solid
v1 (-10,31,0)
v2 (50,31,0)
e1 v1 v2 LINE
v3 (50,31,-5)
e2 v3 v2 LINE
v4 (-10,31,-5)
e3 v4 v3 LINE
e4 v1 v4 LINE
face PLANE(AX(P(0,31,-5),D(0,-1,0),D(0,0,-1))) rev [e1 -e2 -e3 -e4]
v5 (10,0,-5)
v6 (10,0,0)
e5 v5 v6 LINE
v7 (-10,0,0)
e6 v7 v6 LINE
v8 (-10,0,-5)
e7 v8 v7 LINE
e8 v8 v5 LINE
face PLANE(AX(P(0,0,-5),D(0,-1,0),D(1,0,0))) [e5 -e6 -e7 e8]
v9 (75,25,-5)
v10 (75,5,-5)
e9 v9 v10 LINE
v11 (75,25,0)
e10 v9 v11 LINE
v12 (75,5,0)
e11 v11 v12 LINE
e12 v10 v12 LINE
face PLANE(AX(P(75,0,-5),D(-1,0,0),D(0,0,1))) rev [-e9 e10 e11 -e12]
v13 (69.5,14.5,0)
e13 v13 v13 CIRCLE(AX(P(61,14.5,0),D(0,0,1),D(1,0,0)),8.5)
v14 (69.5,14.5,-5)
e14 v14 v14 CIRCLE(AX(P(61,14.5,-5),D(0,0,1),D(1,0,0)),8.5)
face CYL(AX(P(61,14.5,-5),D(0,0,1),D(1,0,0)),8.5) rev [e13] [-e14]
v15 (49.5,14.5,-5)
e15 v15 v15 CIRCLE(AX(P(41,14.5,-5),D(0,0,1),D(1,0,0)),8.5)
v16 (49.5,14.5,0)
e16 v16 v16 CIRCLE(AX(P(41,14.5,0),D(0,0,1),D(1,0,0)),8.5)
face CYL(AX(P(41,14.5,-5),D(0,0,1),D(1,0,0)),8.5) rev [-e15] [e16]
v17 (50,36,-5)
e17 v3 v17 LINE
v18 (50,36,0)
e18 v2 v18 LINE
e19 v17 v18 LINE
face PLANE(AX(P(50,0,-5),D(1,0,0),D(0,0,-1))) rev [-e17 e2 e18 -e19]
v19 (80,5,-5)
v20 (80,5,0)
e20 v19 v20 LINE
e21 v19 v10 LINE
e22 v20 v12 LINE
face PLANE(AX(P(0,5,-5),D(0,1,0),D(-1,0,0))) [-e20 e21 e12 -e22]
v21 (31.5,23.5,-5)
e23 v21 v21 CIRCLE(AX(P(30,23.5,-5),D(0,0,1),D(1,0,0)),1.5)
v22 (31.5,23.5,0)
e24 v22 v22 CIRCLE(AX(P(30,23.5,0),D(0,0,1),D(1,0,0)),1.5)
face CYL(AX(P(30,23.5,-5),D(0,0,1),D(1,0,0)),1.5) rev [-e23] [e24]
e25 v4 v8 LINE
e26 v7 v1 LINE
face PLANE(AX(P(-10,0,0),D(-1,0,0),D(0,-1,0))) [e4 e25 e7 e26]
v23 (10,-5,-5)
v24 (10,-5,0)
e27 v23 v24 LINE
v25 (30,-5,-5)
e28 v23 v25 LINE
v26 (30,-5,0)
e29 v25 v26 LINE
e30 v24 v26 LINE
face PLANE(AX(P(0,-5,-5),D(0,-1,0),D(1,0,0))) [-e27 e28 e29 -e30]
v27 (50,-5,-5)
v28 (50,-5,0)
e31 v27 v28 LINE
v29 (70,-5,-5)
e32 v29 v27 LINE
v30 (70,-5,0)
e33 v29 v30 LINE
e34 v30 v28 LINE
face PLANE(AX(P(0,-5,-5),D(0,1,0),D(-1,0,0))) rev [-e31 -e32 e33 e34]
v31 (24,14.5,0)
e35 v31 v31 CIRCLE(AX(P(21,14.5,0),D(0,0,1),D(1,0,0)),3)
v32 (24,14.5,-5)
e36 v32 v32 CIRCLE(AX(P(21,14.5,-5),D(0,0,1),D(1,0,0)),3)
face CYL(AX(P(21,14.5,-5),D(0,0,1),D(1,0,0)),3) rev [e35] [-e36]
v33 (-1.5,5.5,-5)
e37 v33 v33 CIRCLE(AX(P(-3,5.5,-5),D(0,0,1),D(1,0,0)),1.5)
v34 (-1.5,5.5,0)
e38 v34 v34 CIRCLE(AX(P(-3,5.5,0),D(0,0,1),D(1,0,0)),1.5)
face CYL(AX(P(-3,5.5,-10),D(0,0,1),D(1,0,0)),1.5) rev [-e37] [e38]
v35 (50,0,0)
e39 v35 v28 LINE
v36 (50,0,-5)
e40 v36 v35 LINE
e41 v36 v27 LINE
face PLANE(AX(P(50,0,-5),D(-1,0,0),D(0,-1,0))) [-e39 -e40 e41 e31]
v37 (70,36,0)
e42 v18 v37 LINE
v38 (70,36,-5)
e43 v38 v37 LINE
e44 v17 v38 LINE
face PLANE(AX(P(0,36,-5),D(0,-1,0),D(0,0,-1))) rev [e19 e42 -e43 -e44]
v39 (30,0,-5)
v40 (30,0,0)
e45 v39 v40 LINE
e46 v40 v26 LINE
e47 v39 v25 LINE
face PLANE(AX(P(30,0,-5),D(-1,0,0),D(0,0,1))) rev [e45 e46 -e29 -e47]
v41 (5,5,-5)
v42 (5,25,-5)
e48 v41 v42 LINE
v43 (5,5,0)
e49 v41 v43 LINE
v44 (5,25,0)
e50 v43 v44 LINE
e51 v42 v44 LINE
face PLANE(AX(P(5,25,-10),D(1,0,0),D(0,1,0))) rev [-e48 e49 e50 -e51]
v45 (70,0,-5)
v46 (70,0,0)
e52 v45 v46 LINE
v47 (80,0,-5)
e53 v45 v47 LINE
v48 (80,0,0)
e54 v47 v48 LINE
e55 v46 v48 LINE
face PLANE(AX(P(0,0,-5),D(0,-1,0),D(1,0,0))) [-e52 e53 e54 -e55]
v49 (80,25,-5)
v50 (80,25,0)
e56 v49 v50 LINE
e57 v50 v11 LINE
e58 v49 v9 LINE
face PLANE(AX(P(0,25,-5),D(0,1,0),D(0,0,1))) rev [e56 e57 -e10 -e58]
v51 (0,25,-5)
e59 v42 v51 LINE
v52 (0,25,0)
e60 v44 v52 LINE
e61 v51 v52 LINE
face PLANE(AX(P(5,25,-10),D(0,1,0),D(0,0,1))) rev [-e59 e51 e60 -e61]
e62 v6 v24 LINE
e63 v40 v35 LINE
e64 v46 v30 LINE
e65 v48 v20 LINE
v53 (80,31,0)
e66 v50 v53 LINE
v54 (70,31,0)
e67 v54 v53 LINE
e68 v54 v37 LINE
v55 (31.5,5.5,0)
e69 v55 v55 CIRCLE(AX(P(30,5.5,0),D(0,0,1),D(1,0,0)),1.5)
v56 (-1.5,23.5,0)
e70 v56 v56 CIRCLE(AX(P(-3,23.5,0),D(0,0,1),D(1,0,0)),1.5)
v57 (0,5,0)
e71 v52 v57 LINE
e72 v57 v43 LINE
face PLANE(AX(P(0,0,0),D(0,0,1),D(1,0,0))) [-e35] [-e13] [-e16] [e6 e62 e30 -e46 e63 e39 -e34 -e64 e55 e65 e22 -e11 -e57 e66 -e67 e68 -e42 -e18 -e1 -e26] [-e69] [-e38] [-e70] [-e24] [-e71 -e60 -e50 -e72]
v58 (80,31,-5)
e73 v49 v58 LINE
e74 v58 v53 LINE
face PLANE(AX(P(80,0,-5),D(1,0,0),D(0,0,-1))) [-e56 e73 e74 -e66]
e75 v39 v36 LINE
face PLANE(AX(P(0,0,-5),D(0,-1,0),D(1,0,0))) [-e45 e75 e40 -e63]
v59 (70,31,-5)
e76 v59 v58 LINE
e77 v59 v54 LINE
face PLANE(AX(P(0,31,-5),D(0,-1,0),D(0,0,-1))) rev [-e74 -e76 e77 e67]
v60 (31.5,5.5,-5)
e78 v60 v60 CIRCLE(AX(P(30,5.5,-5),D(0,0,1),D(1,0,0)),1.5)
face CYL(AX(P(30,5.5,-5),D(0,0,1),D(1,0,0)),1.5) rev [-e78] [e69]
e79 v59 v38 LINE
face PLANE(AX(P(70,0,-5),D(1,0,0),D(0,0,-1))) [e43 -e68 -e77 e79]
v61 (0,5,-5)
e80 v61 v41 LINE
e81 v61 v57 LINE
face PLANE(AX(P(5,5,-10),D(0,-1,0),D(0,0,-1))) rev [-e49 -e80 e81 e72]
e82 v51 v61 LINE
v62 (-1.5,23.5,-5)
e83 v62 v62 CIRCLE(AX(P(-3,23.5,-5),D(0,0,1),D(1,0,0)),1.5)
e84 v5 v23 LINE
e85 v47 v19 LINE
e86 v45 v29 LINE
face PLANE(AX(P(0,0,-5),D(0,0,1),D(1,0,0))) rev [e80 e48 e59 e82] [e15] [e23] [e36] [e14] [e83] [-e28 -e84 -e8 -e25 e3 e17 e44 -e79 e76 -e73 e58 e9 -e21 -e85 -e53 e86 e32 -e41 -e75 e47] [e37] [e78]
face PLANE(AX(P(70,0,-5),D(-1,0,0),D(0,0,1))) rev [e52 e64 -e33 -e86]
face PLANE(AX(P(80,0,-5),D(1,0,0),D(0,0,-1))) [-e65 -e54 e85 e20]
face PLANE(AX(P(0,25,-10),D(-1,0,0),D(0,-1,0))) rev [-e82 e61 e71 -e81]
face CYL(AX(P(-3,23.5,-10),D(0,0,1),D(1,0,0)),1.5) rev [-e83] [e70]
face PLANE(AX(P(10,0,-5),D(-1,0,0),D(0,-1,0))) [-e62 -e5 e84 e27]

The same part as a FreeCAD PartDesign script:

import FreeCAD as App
import Part
import Sketcher
from FreeCAD import Vector

doc = App.newDocument("Part")
body = doc.addObject("PartDesign::Body", "Body")

# Sketch on XY plane
sketch1 = doc.addObject("Sketcher::SketchObject", "Sketch")
body.addObject(sketch1)
sketch1.AttachmentSupport = (doc.XY_Plane, [""])
sketch1.MapMode = "FlatFace"
sketch1.addGeometry([
    Part.LineSegment(Vector(0, 0, 0), Vector(10, 0, 0)),  # 0
    Part.LineSegment(Vector(10, 0, 0), Vector(10, -5, 0)),  # 1
    Part.LineSegment(Vector(10, -5, 0), Vector(30, -5, 0)),  # 2
    Part.LineSegment(Vector(30, -5, 0), Vector(30, 0, 0)),  # 3
    Part.LineSegment(Vector(30, 0, 0), Vector(50, 0, 0)),  # 4
    Part.LineSegment(Vector(50, 0, 0), Vector(50, -5, 0)),  # 5
    Part.LineSegment(Vector(50, -5, 0), Vector(70, -5, 0)),  # 6
    Part.LineSegment(Vector(70, -5, 0), Vector(70, 0, 0)),  # 7
    Part.LineSegment(Vector(70, 0, 0), Vector(80, 0, 0)),  # 8
    Part.LineSegment(Vector(80, 0, 0), Vector(80, 5, 0)),  # 9
    Part.LineSegment(Vector(80, 5, 0), Vector(75, 5, 0)),  # 10
    Part.LineSegment(Vector(75, 5, 0), Vector(75, 25, 0)),  # 11
    Part.LineSegment(Vector(75, 25, 0), Vector(80, 25, 0)),  # 12
    Part.LineSegment(Vector(80, 25, 0), Vector(80, 31, 0)),  # 13
    Part.LineSegment(Vector(80, 31, 0), Vector(70, 31, 0)),  # 14
    Part.LineSegment(Vector(70, 31, 0), Vector(70, 36, 0)),  # 15
    Part.LineSegment(Vector(70, 36, 0), Vector(50, 36, 0)),  # 16
    Part.LineSegment(Vector(50, 36, 0), Vector(50, 31, 0)),  # 17
    Part.LineSegment(Vector(50, 31, 0), Vector(0, 31, 0)),  # 18
    Part.LineSegment(Vector(0, 31, 0), Vector(0, 0, 0)),  # 19
    Part.Circle(Vector(30, 5.5, 0), Vector(0, 0, 1), 1.5),  # 20
    Part.Circle(Vector(21, 14.5, 0), Vector(0, 0, 1), 3),  # 21
    Part.Circle(Vector(41, 14.5, 0), Vector(0, 0, 1), 8.5),  # 22
    Part.Circle(Vector(30, 23.5, 0), Vector(0, 0, 1), 1.5),  # 23
    Part.Circle(Vector(61, 14.5, 0), Vector(0, 0, 1), 8.5),  # 24
], False)
sketch1.addConstraint([
    Sketcher.Constraint("Coincident", 0, 2, 1, 1),
    Sketcher.Constraint("Coincident", 1, 2, 2, 1),
    Sketcher.Constraint("Coincident", 2, 2, 3, 1),
    Sketcher.Constraint("Coincident", 3, 2, 4, 1),
    Sketcher.Constraint("Coincident", 4, 2, 5, 1),
    Sketcher.Constraint("Coincident", 5, 2, 6, 1),
    Sketcher.Constraint("Coincident", 6, 2, 7, 1),
    Sketcher.Constraint("Coincident", 7, 2, 8, 1),
    Sketcher.Constraint("Coincident", 8, 2, 9, 1),
    Sketcher.Constraint("Coincident", 9, 2, 10, 1),
    Sketcher.Constraint("Coincident", 10, 2, 11, 1),
    Sketcher.Constraint("Coincident", 11, 2, 12, 1),
    Sketcher.Constraint("Coincident", 12, 2, 13, 1),
    Sketcher.Constraint("Coincident", 13, 2, 14, 1),
    Sketcher.Constraint("Coincident", 14, 2, 15, 1),
    Sketcher.Constraint("Coincident", 15, 2, 16, 1),
    Sketcher.Constraint("Coincident", 16, 2, 17, 1),
    Sketcher.Constraint("Coincident", 17, 2, 18, 1),
    Sketcher.Constraint("Coincident", 18, 2, 19, 1),
    Sketcher.Constraint("Coincident", 19, 2, 0, 1),
    Sketcher.Constraint("Horizontal", 0),
    Sketcher.Constraint("Vertical", 1),
    Sketcher.Constraint("Horizontal", 2),
    Sketcher.Constraint("Vertical", 3),
    Sketcher.Constraint("Horizontal", 4),
    Sketcher.Constraint("Vertical", 5),
    Sketcher.Constraint("Horizontal", 6),
    Sketcher.Constraint("Vertical", 7),
    Sketcher.Constraint("Horizontal", 8),
    Sketcher.Constraint("Vertical", 9),
    Sketcher.Constraint("Horizontal", 10),
    Sketcher.Constraint("Vertical", 11),
    Sketcher.Constraint("Horizontal", 12),
    Sketcher.Constraint("Vertical", 13),
    Sketcher.Constraint("Horizontal", 14),
    Sketcher.Constraint("Vertical", 15),
    Sketcher.Constraint("Horizontal", 16),
    Sketcher.Constraint("Vertical", 17),
    Sketcher.Constraint("Horizontal", 18),
    Sketcher.Constraint("Vertical", 19),
    Sketcher.Constraint("Coincident", 19, 2, -1, 1),
    Sketcher.Constraint("Equal", 20, 23),
    Sketcher.Constraint("Equal", 22, 24),
    Sketcher.Constraint("PointOnObject", 3, 2, -1),
    Sketcher.Constraint("PointOnObject", 7, 2, -1),
    Sketcher.Constraint("Horizontal", 21, 3, 22, 3),
    Sketcher.Constraint("Horizontal", 22, 3, 24, 3),
    Sketcher.Constraint("Horizontal", 2, 2, 5, 2),
    Sketcher.Constraint("Horizontal", 14, 2, 17, 2),
    Sketcher.Constraint("Vertical", 20, 3, 23, 3),
    Sketcher.Constraint("Vertical", 23, 3, 2, 2),
    Sketcher.Constraint("Vertical", 9, 2, 12, 2),
    Sketcher.Constraint("Vertical", 7, 2, 14, 2),
    Sketcher.Constraint("Vertical", 5, 2, 16, 2),
    Sketcher.Constraint("Equal", 2, 4),
    Sketcher.Constraint("Equal", 4, 6),
    Sketcher.Constraint("Equal", 0, 8),
    Sketcher.Constraint("Equal", 12, 1),
    Sketcher.Constraint("Equal", 7, 9),
    Sketcher.Constraint("Equal", 16, 11),
    Sketcher.Constraint("Equal", 9, 15),
    Sketcher.Constraint("Diameter", 20, 3.0),
    Sketcher.Constraint("Diameter", 21, 6.0),
    Sketcher.Constraint("Diameter", 22, 17.0),
    Sketcher.Constraint("DistanceX", 0, 1, 0, 2, 10.0),
    Sketcher.Constraint("DistanceX", 2, 1, 2, 2, 20.0),
    Sketcher.Constraint("DistanceX", 10, 2, 10, 1, 5.0),
    Sketcher.Constraint("DistanceY", 13, 1, 13, 2, 6.0),
    Sketcher.Constraint("DistanceX", -1, 1, 21, 3, 21.0),
    Sketcher.Constraint("DistanceX", -1, 1, 22, 3, 41.0),
    Sketcher.Constraint("DistanceX", -1, 1, 24, 3, 61.0),
    Sketcher.Constraint("DistanceY", 20, 3, 21, 3, 9.0),
    Sketcher.Constraint("DistanceY", 21, 3, 23, 3, 9.0),
    Sketcher.Constraint("DistanceY", -1, 1, 20, 3, 5.5),
])
pad1 = doc.addObject("PartDesign::Pad", "Pad")
body.addObject(pad1)
pad1.Profile = sketch1
pad1.Length = 5
pad1.Reversed = True

# Sketch on YZ plane
sketch2 = doc.addObject("Sketcher::SketchObject", "Sketch001")
body.addObject(sketch2)
sketch2.AttachmentSupport = (doc.YZ_Plane, [""])
sketch2.MapMode = "FlatFace"
sketch2.addGeometry([
    Part.LineSegment(Vector(31, -5, 0), Vector(0, -5, 0)),
    Part.LineSegment(Vector(0, -5, 0), Vector(0, 0, 0)),
    Part.LineSegment(Vector(0, 0, 0), Vector(31, 0, 0)),
    Part.LineSegment(Vector(31, 0, 0), Vector(31, -5, 0)),
], False)
sketch2.addConstraint([
    Sketcher.Constraint("Coincident", 0, 2, 1, 1),
    Sketcher.Constraint("Coincident", 1, 2, 2, 1),
    Sketcher.Constraint("Coincident", 2, 2, 3, 1),
    Sketcher.Constraint("Coincident", 3, 2, 0, 1),
    Sketcher.Constraint("Horizontal", 0),
    Sketcher.Constraint("Vertical", 1),
    Sketcher.Constraint("Horizontal", 2),
    Sketcher.Constraint("Vertical", 3),
    Sketcher.Constraint("Coincident", 1, 2, -1, 1),
    Sketcher.Constraint("DistanceX", 0, 2, 0, 1, 31.0),
    Sketcher.Constraint("DistanceY", 1, 1, 1, 2, 5.0),
])
pad2 = doc.addObject("PartDesign::Pad", "Pad001")
body.addObject(pad2)
pad2.Profile = sketch2
pad2.Length = 10
pad2.Reversed = True

# Sketch on XY plane
sketch3 = doc.addObject("Sketcher::SketchObject", "Sketch002")
body.addObject(sketch3)
sketch3.AttachmentSupport = (doc.XY_Plane, [""])
sketch3.MapMode = "FlatFace"
sketch3.addGeometry([
    Part.Circle(Vector(-3, 23.5, 0), Vector(0, 0, 1), 1.5),  # 0
    Part.Circle(Vector(-3, 5.5, 0), Vector(0, 0, 1), 1.5),  # 1
    Part.LineSegment(Vector(0, 25, 0), Vector(0, 5, 0)),  # 2
    Part.LineSegment(Vector(0, 5, 0), Vector(5, 5, 0)),  # 3
    Part.LineSegment(Vector(5, 5, 0), Vector(5, 25, 0)),  # 4
    Part.LineSegment(Vector(5, 25, 0), Vector(0, 25, 0)),  # 5
], False)
sketch3.addConstraint([
    Sketcher.Constraint("Coincident", 2, 2, 3, 1),
    Sketcher.Constraint("Coincident", 3, 2, 4, 1),
    Sketcher.Constraint("Coincident", 4, 2, 5, 1),
    Sketcher.Constraint("Coincident", 5, 2, 2, 1),
    Sketcher.Constraint("Vertical", 2),
    Sketcher.Constraint("Horizontal", 3),
    Sketcher.Constraint("Vertical", 4),
    Sketcher.Constraint("Horizontal", 5),
    Sketcher.Constraint("Equal", 0, 1),
    Sketcher.Constraint("PointOnObject", 2, 2, -2),
    Sketcher.Constraint("Vertical", 0, 3, 1, 3),
    Sketcher.Constraint("Diameter", 0, 3.0),
    Sketcher.Constraint("DistanceX", 3, 1, 3, 2, 5.0),
    Sketcher.Constraint("DistanceY", 2, 2, 2, 1, 20.0),
    Sketcher.Constraint("DistanceX", 0, 3, -1, 1, 3.0),
    Sketcher.Constraint("DistanceY", -1, 1, 2, 2, 5.0),
    Sketcher.Constraint("DistanceY", 1, 3, 0, 3, 18.0),
    Sketcher.Constraint("DistanceY", -1, 1, 0, 3, 23.5),
])
pocket1 = doc.addObject("PartDesign::Pocket", "Pocket")
body.addObject(pocket1)
pocket1.Profile = sketch3
pocket1.Length = 10

doc.recompute()
